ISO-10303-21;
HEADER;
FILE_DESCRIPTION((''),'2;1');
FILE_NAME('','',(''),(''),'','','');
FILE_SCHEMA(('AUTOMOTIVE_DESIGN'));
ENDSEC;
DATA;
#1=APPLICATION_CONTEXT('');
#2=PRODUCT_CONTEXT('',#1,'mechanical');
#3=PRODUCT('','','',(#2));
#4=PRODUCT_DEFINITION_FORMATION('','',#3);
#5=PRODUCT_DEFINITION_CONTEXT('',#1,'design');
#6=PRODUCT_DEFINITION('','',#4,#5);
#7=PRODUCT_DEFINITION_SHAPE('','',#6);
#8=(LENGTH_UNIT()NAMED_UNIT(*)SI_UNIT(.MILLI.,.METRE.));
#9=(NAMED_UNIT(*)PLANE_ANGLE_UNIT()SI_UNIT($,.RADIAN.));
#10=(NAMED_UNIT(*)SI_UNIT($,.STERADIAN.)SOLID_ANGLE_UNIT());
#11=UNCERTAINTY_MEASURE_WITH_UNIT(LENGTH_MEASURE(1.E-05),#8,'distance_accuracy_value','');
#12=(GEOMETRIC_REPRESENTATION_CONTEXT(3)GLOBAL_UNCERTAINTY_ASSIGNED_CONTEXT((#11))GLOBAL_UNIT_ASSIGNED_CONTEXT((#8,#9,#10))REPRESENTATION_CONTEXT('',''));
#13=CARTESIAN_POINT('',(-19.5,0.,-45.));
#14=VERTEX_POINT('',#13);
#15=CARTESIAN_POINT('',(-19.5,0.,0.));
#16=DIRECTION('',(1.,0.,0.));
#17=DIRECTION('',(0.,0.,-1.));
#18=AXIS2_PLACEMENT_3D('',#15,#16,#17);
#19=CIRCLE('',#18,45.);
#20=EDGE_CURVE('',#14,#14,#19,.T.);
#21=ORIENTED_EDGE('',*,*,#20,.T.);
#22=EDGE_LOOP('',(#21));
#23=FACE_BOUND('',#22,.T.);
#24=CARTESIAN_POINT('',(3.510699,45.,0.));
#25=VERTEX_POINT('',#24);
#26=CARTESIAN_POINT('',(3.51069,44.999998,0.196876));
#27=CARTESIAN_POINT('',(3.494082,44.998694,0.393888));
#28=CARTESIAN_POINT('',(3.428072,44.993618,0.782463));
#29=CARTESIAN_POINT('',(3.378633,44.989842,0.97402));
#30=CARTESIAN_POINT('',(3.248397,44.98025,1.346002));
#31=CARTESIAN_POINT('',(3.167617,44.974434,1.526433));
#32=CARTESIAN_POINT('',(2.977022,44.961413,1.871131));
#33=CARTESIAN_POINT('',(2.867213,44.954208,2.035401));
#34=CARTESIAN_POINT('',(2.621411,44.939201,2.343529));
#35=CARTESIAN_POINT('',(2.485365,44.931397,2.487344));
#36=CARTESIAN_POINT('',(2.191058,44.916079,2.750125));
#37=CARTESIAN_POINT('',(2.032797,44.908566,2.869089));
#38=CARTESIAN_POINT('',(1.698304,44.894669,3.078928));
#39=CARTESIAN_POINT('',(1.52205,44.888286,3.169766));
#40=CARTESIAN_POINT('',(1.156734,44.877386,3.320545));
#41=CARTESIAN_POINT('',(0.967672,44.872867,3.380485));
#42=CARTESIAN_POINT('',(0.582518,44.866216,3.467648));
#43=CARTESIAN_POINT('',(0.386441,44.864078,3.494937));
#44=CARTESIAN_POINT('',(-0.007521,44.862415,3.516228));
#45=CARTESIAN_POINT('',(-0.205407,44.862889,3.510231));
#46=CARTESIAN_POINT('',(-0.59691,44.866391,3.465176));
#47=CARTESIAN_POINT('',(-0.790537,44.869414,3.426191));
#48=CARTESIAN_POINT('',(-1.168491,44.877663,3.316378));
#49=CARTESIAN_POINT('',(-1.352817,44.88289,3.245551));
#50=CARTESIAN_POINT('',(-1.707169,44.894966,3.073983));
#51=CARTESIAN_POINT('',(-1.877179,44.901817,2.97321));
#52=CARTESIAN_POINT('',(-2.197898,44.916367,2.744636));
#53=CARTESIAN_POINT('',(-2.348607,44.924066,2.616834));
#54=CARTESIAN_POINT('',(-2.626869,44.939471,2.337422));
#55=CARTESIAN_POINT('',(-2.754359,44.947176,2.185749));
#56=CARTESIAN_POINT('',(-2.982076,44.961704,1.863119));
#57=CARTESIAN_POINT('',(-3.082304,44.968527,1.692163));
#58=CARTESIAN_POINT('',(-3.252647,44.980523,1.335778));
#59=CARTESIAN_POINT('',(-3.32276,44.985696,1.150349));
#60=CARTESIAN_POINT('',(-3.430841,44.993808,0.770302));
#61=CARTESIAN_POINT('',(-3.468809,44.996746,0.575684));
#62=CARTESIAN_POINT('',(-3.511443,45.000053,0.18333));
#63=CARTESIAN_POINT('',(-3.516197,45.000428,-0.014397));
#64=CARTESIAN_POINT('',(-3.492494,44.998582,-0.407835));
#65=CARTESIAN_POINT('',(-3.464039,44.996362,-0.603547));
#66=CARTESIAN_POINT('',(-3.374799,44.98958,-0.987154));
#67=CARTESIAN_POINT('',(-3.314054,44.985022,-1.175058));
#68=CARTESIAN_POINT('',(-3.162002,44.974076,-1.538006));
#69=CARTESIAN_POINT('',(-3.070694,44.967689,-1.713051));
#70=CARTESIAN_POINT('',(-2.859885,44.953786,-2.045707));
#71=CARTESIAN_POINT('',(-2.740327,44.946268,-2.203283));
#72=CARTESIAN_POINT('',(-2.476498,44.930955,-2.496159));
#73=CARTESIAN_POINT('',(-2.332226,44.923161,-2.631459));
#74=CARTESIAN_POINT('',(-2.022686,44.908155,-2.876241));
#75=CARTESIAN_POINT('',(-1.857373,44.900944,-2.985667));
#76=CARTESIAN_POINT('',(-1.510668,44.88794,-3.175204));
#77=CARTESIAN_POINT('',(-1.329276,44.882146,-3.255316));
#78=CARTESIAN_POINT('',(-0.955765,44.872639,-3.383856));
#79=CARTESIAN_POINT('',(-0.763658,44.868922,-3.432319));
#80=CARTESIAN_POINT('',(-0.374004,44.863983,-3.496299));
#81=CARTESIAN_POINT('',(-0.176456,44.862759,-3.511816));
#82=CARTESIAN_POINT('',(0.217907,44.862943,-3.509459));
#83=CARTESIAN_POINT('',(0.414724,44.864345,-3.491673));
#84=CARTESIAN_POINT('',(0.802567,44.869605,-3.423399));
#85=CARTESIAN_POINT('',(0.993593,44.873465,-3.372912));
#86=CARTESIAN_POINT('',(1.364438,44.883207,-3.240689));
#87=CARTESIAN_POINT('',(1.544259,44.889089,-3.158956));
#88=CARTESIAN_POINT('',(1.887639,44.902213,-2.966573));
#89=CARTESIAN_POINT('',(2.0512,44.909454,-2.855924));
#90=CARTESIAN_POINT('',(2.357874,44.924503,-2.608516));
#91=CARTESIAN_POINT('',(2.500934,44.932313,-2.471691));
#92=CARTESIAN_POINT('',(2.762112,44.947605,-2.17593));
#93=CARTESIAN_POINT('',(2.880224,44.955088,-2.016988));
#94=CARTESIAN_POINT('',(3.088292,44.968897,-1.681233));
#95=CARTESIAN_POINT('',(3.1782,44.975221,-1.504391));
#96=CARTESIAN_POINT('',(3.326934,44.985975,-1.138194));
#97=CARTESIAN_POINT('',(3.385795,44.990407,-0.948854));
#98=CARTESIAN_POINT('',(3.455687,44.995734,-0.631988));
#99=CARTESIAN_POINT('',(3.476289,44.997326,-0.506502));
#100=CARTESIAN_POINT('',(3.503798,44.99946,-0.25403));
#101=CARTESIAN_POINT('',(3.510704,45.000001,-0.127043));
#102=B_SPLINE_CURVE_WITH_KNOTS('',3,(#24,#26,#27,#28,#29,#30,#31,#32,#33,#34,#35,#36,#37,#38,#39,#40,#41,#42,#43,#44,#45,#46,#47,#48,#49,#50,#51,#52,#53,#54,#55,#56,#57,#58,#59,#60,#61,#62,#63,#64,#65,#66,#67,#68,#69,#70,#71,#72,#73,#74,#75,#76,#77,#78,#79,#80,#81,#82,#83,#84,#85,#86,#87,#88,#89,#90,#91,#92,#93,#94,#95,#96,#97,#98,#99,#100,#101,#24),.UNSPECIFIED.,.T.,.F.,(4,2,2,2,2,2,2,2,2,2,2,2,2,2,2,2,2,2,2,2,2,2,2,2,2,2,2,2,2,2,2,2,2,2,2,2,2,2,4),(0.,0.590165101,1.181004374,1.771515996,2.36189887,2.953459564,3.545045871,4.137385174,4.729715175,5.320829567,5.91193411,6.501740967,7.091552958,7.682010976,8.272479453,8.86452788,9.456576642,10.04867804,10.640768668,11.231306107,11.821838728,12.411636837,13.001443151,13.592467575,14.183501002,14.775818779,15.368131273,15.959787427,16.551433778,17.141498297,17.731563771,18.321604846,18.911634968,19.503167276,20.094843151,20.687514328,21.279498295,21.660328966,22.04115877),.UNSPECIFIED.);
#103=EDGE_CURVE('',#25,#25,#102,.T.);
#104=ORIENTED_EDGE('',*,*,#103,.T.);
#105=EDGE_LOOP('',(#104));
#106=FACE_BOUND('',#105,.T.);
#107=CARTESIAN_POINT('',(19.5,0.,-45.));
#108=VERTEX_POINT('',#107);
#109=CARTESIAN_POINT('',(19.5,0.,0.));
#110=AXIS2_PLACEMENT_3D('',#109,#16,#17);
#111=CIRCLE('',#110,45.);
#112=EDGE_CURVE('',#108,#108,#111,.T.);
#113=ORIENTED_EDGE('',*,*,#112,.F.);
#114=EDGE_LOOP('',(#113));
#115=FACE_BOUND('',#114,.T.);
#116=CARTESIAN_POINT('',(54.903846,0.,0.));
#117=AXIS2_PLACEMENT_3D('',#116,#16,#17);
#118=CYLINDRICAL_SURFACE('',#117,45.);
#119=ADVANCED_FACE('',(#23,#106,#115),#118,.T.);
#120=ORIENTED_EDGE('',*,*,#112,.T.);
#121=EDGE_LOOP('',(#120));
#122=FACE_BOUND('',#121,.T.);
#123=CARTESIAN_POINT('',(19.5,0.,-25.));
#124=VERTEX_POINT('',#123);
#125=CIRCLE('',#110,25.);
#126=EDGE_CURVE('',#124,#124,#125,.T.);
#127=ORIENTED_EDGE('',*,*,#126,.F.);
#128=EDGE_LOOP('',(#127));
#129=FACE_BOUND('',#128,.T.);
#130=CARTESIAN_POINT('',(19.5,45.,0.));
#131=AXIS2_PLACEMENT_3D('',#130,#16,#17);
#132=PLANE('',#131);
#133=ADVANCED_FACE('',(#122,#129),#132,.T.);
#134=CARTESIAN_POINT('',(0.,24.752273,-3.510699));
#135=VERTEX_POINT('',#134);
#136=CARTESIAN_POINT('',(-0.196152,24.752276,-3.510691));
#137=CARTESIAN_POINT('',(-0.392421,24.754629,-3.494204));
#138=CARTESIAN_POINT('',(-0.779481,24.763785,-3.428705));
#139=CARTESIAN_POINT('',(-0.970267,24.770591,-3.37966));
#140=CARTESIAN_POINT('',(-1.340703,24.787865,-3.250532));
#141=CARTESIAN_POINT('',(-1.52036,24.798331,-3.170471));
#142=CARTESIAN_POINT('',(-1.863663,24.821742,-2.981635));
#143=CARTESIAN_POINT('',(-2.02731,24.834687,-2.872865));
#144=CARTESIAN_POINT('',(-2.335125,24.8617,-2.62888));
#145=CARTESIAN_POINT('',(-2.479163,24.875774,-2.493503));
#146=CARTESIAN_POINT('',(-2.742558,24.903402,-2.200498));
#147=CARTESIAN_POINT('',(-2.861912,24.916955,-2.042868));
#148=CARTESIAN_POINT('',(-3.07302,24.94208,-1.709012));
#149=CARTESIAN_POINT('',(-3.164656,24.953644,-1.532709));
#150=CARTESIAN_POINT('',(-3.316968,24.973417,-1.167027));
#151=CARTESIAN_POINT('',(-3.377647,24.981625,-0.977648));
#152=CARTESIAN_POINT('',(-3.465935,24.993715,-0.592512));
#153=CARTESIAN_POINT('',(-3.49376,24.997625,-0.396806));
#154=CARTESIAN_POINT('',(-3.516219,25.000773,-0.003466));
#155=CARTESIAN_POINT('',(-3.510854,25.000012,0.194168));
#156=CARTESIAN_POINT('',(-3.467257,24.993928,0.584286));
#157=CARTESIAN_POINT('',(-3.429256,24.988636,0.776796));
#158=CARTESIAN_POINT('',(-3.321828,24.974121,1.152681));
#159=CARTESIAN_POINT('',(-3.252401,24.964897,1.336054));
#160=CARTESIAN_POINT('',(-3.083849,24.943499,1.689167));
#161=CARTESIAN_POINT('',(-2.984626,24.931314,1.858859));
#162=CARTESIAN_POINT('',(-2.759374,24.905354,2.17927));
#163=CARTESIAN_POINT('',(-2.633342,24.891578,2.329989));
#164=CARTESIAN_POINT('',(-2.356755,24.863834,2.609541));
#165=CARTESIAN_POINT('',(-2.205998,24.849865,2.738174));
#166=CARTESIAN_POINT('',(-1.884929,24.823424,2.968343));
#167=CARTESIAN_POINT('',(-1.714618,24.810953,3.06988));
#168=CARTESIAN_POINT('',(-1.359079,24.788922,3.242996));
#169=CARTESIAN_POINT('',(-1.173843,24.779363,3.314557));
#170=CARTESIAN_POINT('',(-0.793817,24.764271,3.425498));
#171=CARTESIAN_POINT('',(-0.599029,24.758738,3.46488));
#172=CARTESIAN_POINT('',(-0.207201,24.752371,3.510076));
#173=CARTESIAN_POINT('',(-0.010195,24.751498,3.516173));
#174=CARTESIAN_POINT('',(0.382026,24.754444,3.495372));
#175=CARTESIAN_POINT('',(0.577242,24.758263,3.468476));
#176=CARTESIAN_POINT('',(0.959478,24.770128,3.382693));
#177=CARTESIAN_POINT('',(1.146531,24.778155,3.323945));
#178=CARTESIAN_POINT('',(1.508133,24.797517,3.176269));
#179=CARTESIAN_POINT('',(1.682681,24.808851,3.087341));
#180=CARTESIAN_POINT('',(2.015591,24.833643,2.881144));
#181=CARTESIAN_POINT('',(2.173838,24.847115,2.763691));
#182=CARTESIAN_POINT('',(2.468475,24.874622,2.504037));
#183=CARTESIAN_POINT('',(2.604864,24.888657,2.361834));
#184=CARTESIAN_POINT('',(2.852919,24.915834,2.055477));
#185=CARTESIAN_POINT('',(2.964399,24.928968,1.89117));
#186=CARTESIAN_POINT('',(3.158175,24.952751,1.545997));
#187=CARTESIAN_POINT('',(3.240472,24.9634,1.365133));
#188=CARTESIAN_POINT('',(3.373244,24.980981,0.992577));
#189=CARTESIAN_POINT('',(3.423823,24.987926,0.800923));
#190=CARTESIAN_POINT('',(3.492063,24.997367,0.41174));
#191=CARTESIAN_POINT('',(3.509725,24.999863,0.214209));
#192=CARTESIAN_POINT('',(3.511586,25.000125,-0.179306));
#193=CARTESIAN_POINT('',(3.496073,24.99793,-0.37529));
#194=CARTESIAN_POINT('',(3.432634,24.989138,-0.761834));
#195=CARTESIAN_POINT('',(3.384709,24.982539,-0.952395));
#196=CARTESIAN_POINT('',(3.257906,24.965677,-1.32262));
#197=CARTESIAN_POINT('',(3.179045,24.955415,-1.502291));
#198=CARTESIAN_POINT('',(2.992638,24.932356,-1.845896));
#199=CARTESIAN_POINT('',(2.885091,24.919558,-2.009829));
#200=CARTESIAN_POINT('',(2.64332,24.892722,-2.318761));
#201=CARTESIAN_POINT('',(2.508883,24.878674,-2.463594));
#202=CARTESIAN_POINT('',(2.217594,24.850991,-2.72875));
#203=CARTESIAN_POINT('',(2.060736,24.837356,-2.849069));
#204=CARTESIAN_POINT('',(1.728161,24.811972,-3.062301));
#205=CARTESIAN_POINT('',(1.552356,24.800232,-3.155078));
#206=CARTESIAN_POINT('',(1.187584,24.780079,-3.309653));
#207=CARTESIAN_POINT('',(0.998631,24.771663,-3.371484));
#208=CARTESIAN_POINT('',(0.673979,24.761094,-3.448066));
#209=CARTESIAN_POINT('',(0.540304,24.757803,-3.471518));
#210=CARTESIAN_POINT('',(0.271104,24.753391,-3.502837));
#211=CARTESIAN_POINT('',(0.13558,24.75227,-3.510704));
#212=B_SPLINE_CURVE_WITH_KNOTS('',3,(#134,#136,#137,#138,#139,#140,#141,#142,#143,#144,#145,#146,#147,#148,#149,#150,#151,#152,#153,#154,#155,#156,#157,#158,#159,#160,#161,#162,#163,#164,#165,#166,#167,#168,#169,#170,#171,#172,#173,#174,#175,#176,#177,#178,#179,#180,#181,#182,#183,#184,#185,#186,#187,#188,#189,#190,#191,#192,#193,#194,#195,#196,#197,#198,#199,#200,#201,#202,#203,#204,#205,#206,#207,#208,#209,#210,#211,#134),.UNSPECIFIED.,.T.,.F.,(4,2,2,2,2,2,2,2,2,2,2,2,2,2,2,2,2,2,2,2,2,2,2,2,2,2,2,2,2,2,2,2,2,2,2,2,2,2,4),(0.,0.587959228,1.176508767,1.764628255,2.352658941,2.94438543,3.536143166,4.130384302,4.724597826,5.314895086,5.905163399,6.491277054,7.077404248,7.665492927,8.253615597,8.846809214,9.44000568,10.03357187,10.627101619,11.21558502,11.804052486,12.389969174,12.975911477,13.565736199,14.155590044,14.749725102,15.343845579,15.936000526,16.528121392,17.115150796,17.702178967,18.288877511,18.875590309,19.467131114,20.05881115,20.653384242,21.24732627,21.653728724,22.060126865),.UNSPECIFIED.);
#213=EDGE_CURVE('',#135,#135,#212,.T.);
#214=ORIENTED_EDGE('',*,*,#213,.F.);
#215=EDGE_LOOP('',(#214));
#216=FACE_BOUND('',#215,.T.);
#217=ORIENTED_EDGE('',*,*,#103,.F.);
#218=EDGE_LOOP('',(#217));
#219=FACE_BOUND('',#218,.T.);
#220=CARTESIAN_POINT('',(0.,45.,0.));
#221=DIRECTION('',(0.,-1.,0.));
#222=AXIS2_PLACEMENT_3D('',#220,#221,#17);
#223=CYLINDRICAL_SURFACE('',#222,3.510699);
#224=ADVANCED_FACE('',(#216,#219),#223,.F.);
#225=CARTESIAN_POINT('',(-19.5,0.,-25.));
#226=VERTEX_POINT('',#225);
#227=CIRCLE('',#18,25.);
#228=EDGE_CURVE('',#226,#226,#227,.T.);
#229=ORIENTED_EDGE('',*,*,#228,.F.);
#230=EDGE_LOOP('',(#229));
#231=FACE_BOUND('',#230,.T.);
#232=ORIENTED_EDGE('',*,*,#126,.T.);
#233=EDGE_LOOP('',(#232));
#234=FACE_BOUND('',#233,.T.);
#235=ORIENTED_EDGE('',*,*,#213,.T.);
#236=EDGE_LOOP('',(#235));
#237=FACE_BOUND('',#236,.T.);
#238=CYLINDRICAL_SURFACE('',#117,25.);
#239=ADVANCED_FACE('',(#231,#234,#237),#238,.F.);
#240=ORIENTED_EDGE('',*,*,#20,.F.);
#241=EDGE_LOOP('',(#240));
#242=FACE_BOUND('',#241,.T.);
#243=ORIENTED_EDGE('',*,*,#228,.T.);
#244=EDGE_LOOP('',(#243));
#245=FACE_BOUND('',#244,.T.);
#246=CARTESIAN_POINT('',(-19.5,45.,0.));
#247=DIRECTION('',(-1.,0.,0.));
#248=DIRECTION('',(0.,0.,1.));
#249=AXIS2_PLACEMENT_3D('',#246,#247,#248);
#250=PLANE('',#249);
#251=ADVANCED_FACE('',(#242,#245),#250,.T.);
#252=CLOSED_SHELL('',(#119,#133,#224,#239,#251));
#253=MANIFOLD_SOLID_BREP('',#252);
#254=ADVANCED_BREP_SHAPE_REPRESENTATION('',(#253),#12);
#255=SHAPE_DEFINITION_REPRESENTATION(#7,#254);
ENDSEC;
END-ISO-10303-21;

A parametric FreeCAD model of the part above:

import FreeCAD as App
import Part
import Sketcher

V = App.Vector


def add_polygon(sketch, points):
    """Adds a closed chain of lines whose ends are joined by coincident constraints."""
    first, n = sketch.GeometryCount, len(points)
    for a, b in zip(points, points[1:] + points[:1]):
        sketch.addGeometry(Part.LineSegment(App.Vector(*a, 0), App.Vector(*b, 0)), False)
    for i in range(n):
        sketch.addConstraint(Sketcher.Constraint("Coincident", first + i, 2, first + (i + 1) % n, 1))

doc = App.newDocument("Part")
body = doc.addObject("PartDesign::Body", "Body")

sketch1 = doc.addObject("Sketcher::SketchObject", "Sketch")
body.addObject(sketch1)
sketch1.AttachmentSupport = (doc.XY_Plane, [""])
sketch1.MapMode = "FlatFace"
add_polygon(sketch1, [(-20, 45), (-20, 25), (20, 25), (20, 45)])
sketch1.addConstraint([
    Sketcher.Constraint("Vertical", 0),
    Sketcher.Constraint("Horizontal", 1),
    Sketcher.Constraint("Vertical", 2),
    Sketcher.Constraint("Horizontal", 3),
    Sketcher.Constraint("DistanceX", 1, 1, 1, 2, 39.0),
    Sketcher.Constraint("DistanceY", 0, 2, 0, 1, 20.0),
    Sketcher.Constraint("DistanceY", -1, 1, 0, 2, 25.0),
    Sketcher.Constraint("DistanceX", 0, 2, -1, 1, 19.5),
])
revolution = doc.addObject("PartDesign::Revolution", "Revolution")
body.addObject(revolution)
revolution.Profile = sketch1
revolution.ReferenceAxis = (sketch1, ["H_Axis"])
revolution.Angle = 360

sketch2 = doc.addObject("Sketcher::SketchObject", "Sketch001")
body.addObject(sketch2)
sketch2.AttachmentSupport = (doc.XZ_Plane, [""])
sketch2.MapMode = "FlatFace"
sketch2.addGeometry(Part.Circle(V(0, 0, 0), V(0, 0, 1), 3.5), False)
sketch2.addConstraint([
    Sketcher.Constraint("Coincident", 0, 3, -1, 1),
    Sketcher.Constraint("Diameter", 0, 7.021398),
])
pocket1 = doc.addObject("PartDesign::Pocket", "Pocket")
body.addObject(pocket1)
pocket1.Profile = sketch2
pocket1.Type = "ThroughAll"

doc.recompute()
